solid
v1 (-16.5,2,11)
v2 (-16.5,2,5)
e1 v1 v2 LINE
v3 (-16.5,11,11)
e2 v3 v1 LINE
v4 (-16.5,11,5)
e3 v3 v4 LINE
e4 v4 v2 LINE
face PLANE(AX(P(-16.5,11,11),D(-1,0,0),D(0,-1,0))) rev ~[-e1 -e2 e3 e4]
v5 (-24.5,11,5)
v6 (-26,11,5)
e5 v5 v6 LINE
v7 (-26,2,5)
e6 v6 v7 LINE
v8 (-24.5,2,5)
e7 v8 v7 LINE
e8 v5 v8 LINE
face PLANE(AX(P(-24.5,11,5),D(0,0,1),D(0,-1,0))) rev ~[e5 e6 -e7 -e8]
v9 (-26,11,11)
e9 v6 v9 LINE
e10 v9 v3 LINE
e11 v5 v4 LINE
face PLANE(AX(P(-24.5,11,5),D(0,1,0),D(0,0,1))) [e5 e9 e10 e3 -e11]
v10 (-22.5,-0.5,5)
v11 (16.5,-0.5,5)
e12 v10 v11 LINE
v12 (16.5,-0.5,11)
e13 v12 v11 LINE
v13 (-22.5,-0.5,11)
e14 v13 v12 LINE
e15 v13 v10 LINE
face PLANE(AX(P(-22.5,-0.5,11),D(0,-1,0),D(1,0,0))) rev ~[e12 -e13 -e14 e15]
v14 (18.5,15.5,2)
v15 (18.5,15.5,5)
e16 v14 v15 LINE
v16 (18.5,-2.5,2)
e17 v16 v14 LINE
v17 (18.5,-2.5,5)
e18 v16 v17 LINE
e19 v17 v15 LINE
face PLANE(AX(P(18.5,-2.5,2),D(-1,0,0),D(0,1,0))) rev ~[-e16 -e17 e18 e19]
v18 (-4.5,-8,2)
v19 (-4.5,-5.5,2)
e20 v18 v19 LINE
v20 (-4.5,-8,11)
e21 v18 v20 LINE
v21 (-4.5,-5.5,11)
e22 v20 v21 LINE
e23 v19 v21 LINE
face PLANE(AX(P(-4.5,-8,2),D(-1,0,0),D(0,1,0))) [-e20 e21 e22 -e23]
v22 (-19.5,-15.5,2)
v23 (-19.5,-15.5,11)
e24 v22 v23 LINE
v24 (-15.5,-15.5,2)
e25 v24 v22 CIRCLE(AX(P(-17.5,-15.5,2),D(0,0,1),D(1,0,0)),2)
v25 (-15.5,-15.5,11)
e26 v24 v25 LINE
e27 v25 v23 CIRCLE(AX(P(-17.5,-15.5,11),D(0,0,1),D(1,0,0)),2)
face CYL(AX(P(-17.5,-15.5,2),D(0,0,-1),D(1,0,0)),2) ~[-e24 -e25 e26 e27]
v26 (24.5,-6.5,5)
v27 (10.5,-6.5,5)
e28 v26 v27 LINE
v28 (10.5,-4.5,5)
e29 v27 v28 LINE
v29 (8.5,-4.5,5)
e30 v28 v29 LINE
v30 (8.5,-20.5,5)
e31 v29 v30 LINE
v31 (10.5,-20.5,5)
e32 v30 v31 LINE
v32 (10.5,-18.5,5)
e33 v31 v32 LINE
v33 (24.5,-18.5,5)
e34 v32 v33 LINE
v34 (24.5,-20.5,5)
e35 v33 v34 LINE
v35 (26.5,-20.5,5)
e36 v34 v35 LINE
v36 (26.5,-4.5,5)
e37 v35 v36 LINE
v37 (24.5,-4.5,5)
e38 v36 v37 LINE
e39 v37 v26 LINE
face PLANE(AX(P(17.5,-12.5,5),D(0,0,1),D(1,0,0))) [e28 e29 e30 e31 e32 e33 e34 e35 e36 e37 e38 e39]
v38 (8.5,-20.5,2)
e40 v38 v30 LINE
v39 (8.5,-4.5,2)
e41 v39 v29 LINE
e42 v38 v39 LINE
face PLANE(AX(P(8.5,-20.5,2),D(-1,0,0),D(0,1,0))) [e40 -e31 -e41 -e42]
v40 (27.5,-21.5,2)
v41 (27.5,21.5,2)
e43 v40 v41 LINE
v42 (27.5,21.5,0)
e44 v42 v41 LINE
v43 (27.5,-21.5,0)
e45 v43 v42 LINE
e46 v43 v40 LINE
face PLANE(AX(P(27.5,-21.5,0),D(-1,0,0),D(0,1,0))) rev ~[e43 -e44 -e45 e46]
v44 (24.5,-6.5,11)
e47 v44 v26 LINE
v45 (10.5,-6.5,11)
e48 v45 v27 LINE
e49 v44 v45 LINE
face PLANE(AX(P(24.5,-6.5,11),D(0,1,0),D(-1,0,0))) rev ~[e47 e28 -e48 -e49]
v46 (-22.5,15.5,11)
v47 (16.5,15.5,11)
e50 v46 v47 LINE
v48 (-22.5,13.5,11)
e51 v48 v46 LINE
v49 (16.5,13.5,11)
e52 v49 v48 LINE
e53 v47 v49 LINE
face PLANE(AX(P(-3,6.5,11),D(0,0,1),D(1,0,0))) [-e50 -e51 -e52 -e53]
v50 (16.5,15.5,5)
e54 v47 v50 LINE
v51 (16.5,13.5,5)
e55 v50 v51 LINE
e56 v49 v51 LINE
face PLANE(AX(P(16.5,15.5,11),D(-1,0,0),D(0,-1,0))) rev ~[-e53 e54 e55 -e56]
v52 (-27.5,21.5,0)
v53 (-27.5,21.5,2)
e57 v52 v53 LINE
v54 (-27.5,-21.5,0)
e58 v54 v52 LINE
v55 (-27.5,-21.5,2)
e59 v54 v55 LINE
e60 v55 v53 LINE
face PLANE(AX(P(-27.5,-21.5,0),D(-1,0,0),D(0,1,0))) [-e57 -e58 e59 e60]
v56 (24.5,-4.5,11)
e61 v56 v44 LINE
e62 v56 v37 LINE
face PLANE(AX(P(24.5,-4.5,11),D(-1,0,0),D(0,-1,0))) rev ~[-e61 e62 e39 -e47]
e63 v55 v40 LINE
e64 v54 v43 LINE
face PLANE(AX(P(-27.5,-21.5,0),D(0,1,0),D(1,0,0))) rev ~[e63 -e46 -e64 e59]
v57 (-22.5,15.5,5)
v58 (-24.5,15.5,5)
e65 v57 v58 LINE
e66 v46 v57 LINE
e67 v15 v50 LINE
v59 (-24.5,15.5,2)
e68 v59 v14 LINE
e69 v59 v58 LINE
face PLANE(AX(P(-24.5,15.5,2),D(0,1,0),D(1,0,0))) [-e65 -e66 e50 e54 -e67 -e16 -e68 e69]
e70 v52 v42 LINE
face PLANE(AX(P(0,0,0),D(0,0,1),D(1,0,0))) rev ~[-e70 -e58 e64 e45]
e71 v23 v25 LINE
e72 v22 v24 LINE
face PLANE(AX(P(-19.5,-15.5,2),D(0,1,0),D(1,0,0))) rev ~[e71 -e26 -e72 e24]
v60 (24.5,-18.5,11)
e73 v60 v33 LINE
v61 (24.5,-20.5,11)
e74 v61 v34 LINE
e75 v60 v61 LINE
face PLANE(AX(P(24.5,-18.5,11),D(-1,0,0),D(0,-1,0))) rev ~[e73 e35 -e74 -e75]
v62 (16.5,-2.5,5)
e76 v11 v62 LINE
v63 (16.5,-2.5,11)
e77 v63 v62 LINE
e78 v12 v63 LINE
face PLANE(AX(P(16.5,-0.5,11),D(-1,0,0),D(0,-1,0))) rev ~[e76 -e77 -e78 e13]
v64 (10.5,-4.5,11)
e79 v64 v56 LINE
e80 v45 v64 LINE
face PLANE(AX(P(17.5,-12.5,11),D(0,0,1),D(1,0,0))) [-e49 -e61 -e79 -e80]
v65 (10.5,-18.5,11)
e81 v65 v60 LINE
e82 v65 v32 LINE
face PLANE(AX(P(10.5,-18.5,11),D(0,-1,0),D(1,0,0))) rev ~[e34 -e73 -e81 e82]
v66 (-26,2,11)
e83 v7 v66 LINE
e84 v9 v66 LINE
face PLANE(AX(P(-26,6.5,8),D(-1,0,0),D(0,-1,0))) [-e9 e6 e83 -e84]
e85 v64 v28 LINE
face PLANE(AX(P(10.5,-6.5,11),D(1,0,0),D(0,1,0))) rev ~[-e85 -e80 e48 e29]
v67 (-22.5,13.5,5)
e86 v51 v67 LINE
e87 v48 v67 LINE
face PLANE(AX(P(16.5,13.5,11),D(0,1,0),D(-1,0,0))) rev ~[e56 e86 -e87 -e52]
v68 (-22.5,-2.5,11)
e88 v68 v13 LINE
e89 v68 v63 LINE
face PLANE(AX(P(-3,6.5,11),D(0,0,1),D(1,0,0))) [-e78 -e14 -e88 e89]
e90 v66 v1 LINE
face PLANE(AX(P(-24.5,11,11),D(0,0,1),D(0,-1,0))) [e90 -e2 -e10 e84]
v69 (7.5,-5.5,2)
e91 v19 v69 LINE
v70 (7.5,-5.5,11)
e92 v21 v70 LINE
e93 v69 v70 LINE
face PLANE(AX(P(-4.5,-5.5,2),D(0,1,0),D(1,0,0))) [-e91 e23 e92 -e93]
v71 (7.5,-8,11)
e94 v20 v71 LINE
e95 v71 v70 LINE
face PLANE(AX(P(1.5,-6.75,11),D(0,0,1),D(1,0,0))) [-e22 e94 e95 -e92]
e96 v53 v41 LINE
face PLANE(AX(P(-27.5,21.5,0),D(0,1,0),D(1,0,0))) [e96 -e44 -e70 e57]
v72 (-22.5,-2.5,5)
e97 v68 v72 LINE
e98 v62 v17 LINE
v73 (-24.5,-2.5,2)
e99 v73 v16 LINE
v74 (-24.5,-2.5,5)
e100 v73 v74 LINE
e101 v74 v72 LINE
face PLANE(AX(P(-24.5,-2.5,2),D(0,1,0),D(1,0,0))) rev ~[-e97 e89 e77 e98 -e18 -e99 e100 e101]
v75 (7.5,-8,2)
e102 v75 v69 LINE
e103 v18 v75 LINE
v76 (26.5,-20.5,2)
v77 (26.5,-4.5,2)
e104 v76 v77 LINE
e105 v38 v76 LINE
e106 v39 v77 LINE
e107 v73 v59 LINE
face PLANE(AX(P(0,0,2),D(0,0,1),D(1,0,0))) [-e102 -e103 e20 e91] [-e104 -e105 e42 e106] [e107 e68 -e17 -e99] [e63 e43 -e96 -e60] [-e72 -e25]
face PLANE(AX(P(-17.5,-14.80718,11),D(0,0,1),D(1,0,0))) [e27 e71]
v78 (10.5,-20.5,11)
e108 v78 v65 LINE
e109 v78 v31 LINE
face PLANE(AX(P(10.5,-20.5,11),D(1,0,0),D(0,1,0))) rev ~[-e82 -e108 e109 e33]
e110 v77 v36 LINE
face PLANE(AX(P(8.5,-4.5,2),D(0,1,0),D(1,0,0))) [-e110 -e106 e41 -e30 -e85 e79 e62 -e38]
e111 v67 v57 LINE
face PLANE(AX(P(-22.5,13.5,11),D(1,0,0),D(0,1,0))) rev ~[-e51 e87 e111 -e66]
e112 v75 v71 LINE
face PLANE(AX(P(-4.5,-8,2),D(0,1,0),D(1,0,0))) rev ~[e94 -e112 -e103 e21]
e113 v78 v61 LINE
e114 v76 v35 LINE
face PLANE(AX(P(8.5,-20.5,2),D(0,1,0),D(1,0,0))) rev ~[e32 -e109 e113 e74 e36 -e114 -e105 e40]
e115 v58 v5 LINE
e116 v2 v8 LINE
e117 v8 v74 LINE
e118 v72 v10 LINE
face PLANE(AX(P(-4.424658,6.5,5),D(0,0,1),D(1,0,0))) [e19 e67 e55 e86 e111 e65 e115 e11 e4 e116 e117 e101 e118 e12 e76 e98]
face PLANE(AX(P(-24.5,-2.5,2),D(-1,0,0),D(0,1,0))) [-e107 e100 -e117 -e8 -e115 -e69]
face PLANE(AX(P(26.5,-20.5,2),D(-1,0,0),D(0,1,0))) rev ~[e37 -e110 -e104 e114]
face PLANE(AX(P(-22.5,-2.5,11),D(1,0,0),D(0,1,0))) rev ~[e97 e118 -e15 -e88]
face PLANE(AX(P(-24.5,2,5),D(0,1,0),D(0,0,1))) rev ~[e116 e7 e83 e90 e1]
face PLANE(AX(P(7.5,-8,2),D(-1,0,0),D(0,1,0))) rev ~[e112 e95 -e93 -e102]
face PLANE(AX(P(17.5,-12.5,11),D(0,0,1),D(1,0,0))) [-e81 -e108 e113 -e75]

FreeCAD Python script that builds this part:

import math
import FreeCAD as App
import Part
import Sketcher

V = App.Vector
Q = App.Units.Quantity


def add_polygon(sketch, points):
    """Adds a closed chain of lines whose ends are joined by coincident constraints."""
    first, n = sketch.GeometryCount, len(points)
    for a, b in zip(points, points[1:] + points[:1]):
        sketch.addGeometry(Part.LineSegment(App.Vector(*a, 0), App.Vector(*b, 0)), False)
    for i in range(n):
        sketch.addConstraint(Sketcher.Constraint("Coincident", first + i, 2, first + (i + 1) % n, 1))

doc = App.newDocument("Part")
body = doc.addObject("PartDesign::Body", "Body")

sketch1 = body.newObject("Sketcher::SketchObject", "Sketch")
sketch1.AttachmentSupport = (doc.getObject("XY_Plane"), [""])
sketch1.MapMode = "FlatFace"
add_polygon(sketch1, [(-27.5, 21.5), (-27.5, -21.5), (27.5, -21.5), (27.5, 21.5)])
sketch1.addConstraint([
    Sketcher.Constraint("Vertical", 0),
    Sketcher.Constraint("Horizontal", 1),
    Sketcher.Constraint("Vertical", 2),
    Sketcher.Constraint("Horizontal", 3),
    Sketcher.Constraint("Symmetric", 0, 2, 2, 2, -1, 1),
    Sketcher.Constraint("DistanceX", 1, 1, 1, 2, Q("55 mm")),
    Sketcher.Constraint("DistanceY", 0, 2, 0, 1, Q("43 mm")),
])
pad1 = body.newObject("PartDesign::Pad", "Pad")
pad1.Profile = sketch1
pad1.Length = 2

sketch2 = body.newObject("Sketcher::SketchObject", "Sketch001")
sketch2.AttachmentSupport = (doc.getObject("XY_Plane"), [""])
sketch2.MapMode = "FlatFace"
sketch2.AttachmentOffset = App.Placement(V(0, 0, 2), App.Rotation())
add_polygon(sketch2, [(-24.5, 15.5), (-24.5, -2.5), (18.5, -2.5), (18.5, 15.5)])
add_polygon(sketch2, [(-4.5, -5.5), (-4.5, -8), (7.5, -8), (7.5, -5.5)])
add_polygon(sketch2, [(8.5, -4.5), (8.5, -20.5), (26.5, -20.5), (26.5, -4.5)])
sketch2.addGeometry(Part.ArcOfCircle(Part.Circle(V(-17.5, -15.5, 0), V(0, 0, 1), 2), math.radians(0), math.radians(180)), False)
sketch2.addGeometry(Part.LineSegment(V(-19.5, -15.5, 0), V(-15.5, -15.5, 0)), False)
sketch2.addConstraint([
    Sketcher.Constraint("Coincident", 12, 1, 13, 2),
    Sketcher.Constraint("Coincident", 13, 1, 12, 2),
    Sketcher.Constraint("Vertical", 0),
    Sketcher.Constraint("Horizontal", 1),
    Sketcher.Constraint("Vertical", 2),
    Sketcher.Constraint("Horizontal", 3),
    Sketcher.Constraint("Vertical", 4),
    Sketcher.Constraint("Horizontal", 5),
    Sketcher.Constraint("Vertical", 6),
    Sketcher.Constraint("Horizontal", 7),
    Sketcher.Constraint("Vertical", 8),
    Sketcher.Constraint("Horizontal", 9),
    Sketcher.Constraint("Vertical", 10),
    Sketcher.Constraint("Horizontal", 11),
    Sketcher.Constraint("Horizontal", 13),
    Sketcher.Constraint("Equal", 11, 0),
    Sketcher.Constraint("Radius", 12, Q("2 mm")),
    Sketcher.Constraint("DistanceX", 1, 1, 1, 2, Q("43 mm")),
    Sketcher.Constraint("DistanceX", 5, 1, 5, 2, Q("12 mm")),
    Sketcher.Constraint("DistanceX", 9, 1, 9, 2, Q("18 mm")),
    Sketcher.Constraint("DistanceY", 8, 2, 8, 1, Q("16 mm")),
    Sketcher.Constraint("DistanceY", 4, 2, 4, 1, Q("2.5 mm")),
    Sketcher.Constraint("DistanceY", 4, 2, -1, 1, Q("8 mm")),
    Sketcher.Constraint("DistanceX", 0, 2, 12, 3, Q("7 mm")),
    Sketcher.Constraint("DistanceY", 12, 3, 0, 2, Q("13 mm")),
    Sketcher.Constraint("DistanceX", 12, 3, 4, 2, Q("13 mm")),
    Sketcher.Constraint("DistanceY", 6, 2, 1, 2, Q("3 mm")),
    Sketcher.Constraint("DistanceX", 5, 2, 8, 2, Q("1 mm")),
    Sketcher.Constraint("DistanceY", 8, 2, 6, 2, Q("15 mm")),
    Sketcher.Constraint("DistanceY", 12, 1, 7, 2, Q("10 mm")),
    Sketcher.Constraint("DistanceX", 12, 3, -1, 1, Q("17.5 mm")),
])
pad2 = body.newObject("PartDesign::Pad", "Pad001")
pad2.Profile = sketch2
pad2.Length = 9

sketch3 = body.newObject("Sketcher::SketchObject", "Sketch002")
sketch3.AttachmentSupport = (doc.getObject("XY_Plane"), [""])
sketch3.MapMode = "FlatFace"
sketch3.AttachmentOffset = App.Placement(V(0, 0, 11), App.Rotation())
add_polygon(sketch3, [(-22.5, 13.5), (-22.5, 15.5), (-24.5, 15.5), (-24.5, 11), (-16.5, 11), (-16.5, 2), (-24.5, 2), (-24.5, -2.5), (-22.5, -2.5), (-22.5, -0.5), (16.5, -0.5), (16.5, -2.5), (18.5, -2.5), (18.5, 15.5), (16.5, 15.5), (16.5, 13.5)])
add_polygon(sketch3, [(10.5, -4.5), (8.5, -4.5), (8.5, -20.5), (10.5, -20.5), (10.5, -18.5), (24.5, -18.5), (24.5, -20.5), (26.5, -20.5), (26.5, -4.5), (24.5, -4.5), (24.5, -6.5), (10.5, -6.5)])
sketch3.addConstraint([
    Sketcher.Constraint("Vertical", 0),
    Sketcher.Constraint("Horizontal", 1),
    Sketcher.Constraint("Vertical", 2),
    Sketcher.Constraint("Horizontal", 3),
    Sketcher.Constraint("Vertical", 4),
    Sketcher.Constraint("Horizontal", 5),
    Sketcher.Constraint("Vertical", 6),
    Sketcher.Constraint("Horizontal", 7),
    Sketcher.Constraint("Vertical", 8),
    Sketcher.Constraint("Horizontal", 9),
    Sketcher.Constraint("Vertical", 10),
    Sketcher.Constraint("Horizontal", 11),
    Sketcher.Constraint("Vertical", 12),
    Sketcher.Constraint("Horizontal", 13),
    Sketcher.Constraint("Vertical", 14),
    Sketcher.Constraint("Horizontal", 15),
    Sketcher.Constraint("Horizontal", 16),
    Sketcher.Constraint("Vertical", 17),
    Sketcher.Constraint("Horizontal", 18),
    Sketcher.Constraint("Vertical", 19),
    Sketcher.Constraint("Horizontal", 20),
    Sketcher.Constraint("Vertical", 21),
    Sketcher.Constraint("Horizontal", 22),
    Sketcher.Constraint("Vertical", 23),
    Sketcher.Constraint("Horizontal", 24),
    Sketcher.Constraint("Vertical", 25),
    Sketcher.Constraint("Horizontal", 26),
    Sketcher.Constraint("Vertical", 27),
    Sketcher.Constraint("Horizontal", 7, 2, 10, 2),
    Sketcher.Constraint("Horizontal", 1, 2, 12, 2),
    Sketcher.Constraint("Horizontal", 18, 2, 21, 2),
    Sketcher.Constraint("Horizontal", 16, 2, 23, 2),
    Sketcher.Constraint("Vertical", 2, 2, 5, 2),
    Sketcher.Constraint("Vertical", 0, 2, 7, 2),
    Sketcher.Constraint("Vertical", 10, 2, 13, 2),
    Sketcher.Constraint("Vertical", 21, 2, 24, 2),
    Sketcher.Constraint("Vertical", 19, 2, 26, 2),
    Sketcher.Constraint("Equal", 7, 11),
    Sketcher.Constraint("Equal", 13, 16),
    Sketcher.Constraint("Equal", 18, 22),
    Sketcher.Constraint("Equal", 24, 0),
    Sketcher.Constraint("Equal", 2, 6),
    Sketcher.Constraint("Equal", 0, 8),
    Sketcher.Constraint("Equal", 14, 19),
    Sketcher.Constraint("Equal", 21, 25),
    Sketcher.Constraint("DistanceX", 1, 2, 1, 1, Q("2 mm")),
    Sketcher.Constraint("DistanceX", 3, 1, 3, 2, Q("8 mm")),
    Sketcher.Constraint("DistanceX", 9, 1, 9, 2, Q("39 mm")),
    Sketcher.Constraint("DistanceX", 20, 1, 20, 2, Q("14 mm")),
    Sketcher.Constraint("DistanceY", 4, 2, 4, 1, Q("9 mm")),
    Sketcher.Constraint("DistanceY", 12, 1, 12, 2, Q("18 mm")),
    Sketcher.Constraint("DistanceY", 17, 2, 17, 1, Q("16 mm")),
    Sketcher.Constraint("DistanceY", -1, 1, 2, 2, Q("11 mm")),
    Sketcher.Constraint("DistanceX", 16, 2, 10, 2, Q("8 mm")),
    Sketcher.Constraint("DistanceY", 16, 2, 10, 2, Q("2 mm")),
    Sketcher.Constraint("DistanceX", 0, 2, -1, 1, Q("22.5 mm")),
])
pocket1 = body.newObject("PartDesign::Pocket", "Pocket")
pocket1.Profile = sketch3
pocket1.Length = 6

sketch4 = body.newObject("Sketcher::SketchObject", "Sketch003")
sketch4.AttachmentSupport = (doc.getObject("YZ_Plane"), [""])
sketch4.MapMode = "FlatFace"
sketch4.AttachmentOffset = App.Placement(V(0, 0, -24.5), App.Rotation())
add_polygon(sketch4, [(11, 11), (11, 5), (2, 5), (2, 11)])
sketch4.addConstraint([
    Sketcher.Constraint("Vertical", 0),
    Sketcher.Constraint("Horizontal", 1),
    Sketcher.Constraint("Vertical", 2),
    Sketcher.Constraint("Horizontal", 3),
    Sketcher.Constraint("DistanceX", 1, 2, 1, 1, Q("9 mm")),
    Sketcher.Constraint("DistanceY", 0, 2, 0, 1, Q("6 mm")),
    Sketcher.Constraint("DistanceX", -1, 1, 0, 2, Q("11 mm")),
    Sketcher.Constraint("DistanceY", -1, 1, 0, 2, Q("5 mm")),
])
pad3 = body.newObject("PartDesign::Pad", "Pad002")
pad3.Profile = sketch4
pad3.Length = 1.5
pad3.Reversed = True

doc.recompute()
